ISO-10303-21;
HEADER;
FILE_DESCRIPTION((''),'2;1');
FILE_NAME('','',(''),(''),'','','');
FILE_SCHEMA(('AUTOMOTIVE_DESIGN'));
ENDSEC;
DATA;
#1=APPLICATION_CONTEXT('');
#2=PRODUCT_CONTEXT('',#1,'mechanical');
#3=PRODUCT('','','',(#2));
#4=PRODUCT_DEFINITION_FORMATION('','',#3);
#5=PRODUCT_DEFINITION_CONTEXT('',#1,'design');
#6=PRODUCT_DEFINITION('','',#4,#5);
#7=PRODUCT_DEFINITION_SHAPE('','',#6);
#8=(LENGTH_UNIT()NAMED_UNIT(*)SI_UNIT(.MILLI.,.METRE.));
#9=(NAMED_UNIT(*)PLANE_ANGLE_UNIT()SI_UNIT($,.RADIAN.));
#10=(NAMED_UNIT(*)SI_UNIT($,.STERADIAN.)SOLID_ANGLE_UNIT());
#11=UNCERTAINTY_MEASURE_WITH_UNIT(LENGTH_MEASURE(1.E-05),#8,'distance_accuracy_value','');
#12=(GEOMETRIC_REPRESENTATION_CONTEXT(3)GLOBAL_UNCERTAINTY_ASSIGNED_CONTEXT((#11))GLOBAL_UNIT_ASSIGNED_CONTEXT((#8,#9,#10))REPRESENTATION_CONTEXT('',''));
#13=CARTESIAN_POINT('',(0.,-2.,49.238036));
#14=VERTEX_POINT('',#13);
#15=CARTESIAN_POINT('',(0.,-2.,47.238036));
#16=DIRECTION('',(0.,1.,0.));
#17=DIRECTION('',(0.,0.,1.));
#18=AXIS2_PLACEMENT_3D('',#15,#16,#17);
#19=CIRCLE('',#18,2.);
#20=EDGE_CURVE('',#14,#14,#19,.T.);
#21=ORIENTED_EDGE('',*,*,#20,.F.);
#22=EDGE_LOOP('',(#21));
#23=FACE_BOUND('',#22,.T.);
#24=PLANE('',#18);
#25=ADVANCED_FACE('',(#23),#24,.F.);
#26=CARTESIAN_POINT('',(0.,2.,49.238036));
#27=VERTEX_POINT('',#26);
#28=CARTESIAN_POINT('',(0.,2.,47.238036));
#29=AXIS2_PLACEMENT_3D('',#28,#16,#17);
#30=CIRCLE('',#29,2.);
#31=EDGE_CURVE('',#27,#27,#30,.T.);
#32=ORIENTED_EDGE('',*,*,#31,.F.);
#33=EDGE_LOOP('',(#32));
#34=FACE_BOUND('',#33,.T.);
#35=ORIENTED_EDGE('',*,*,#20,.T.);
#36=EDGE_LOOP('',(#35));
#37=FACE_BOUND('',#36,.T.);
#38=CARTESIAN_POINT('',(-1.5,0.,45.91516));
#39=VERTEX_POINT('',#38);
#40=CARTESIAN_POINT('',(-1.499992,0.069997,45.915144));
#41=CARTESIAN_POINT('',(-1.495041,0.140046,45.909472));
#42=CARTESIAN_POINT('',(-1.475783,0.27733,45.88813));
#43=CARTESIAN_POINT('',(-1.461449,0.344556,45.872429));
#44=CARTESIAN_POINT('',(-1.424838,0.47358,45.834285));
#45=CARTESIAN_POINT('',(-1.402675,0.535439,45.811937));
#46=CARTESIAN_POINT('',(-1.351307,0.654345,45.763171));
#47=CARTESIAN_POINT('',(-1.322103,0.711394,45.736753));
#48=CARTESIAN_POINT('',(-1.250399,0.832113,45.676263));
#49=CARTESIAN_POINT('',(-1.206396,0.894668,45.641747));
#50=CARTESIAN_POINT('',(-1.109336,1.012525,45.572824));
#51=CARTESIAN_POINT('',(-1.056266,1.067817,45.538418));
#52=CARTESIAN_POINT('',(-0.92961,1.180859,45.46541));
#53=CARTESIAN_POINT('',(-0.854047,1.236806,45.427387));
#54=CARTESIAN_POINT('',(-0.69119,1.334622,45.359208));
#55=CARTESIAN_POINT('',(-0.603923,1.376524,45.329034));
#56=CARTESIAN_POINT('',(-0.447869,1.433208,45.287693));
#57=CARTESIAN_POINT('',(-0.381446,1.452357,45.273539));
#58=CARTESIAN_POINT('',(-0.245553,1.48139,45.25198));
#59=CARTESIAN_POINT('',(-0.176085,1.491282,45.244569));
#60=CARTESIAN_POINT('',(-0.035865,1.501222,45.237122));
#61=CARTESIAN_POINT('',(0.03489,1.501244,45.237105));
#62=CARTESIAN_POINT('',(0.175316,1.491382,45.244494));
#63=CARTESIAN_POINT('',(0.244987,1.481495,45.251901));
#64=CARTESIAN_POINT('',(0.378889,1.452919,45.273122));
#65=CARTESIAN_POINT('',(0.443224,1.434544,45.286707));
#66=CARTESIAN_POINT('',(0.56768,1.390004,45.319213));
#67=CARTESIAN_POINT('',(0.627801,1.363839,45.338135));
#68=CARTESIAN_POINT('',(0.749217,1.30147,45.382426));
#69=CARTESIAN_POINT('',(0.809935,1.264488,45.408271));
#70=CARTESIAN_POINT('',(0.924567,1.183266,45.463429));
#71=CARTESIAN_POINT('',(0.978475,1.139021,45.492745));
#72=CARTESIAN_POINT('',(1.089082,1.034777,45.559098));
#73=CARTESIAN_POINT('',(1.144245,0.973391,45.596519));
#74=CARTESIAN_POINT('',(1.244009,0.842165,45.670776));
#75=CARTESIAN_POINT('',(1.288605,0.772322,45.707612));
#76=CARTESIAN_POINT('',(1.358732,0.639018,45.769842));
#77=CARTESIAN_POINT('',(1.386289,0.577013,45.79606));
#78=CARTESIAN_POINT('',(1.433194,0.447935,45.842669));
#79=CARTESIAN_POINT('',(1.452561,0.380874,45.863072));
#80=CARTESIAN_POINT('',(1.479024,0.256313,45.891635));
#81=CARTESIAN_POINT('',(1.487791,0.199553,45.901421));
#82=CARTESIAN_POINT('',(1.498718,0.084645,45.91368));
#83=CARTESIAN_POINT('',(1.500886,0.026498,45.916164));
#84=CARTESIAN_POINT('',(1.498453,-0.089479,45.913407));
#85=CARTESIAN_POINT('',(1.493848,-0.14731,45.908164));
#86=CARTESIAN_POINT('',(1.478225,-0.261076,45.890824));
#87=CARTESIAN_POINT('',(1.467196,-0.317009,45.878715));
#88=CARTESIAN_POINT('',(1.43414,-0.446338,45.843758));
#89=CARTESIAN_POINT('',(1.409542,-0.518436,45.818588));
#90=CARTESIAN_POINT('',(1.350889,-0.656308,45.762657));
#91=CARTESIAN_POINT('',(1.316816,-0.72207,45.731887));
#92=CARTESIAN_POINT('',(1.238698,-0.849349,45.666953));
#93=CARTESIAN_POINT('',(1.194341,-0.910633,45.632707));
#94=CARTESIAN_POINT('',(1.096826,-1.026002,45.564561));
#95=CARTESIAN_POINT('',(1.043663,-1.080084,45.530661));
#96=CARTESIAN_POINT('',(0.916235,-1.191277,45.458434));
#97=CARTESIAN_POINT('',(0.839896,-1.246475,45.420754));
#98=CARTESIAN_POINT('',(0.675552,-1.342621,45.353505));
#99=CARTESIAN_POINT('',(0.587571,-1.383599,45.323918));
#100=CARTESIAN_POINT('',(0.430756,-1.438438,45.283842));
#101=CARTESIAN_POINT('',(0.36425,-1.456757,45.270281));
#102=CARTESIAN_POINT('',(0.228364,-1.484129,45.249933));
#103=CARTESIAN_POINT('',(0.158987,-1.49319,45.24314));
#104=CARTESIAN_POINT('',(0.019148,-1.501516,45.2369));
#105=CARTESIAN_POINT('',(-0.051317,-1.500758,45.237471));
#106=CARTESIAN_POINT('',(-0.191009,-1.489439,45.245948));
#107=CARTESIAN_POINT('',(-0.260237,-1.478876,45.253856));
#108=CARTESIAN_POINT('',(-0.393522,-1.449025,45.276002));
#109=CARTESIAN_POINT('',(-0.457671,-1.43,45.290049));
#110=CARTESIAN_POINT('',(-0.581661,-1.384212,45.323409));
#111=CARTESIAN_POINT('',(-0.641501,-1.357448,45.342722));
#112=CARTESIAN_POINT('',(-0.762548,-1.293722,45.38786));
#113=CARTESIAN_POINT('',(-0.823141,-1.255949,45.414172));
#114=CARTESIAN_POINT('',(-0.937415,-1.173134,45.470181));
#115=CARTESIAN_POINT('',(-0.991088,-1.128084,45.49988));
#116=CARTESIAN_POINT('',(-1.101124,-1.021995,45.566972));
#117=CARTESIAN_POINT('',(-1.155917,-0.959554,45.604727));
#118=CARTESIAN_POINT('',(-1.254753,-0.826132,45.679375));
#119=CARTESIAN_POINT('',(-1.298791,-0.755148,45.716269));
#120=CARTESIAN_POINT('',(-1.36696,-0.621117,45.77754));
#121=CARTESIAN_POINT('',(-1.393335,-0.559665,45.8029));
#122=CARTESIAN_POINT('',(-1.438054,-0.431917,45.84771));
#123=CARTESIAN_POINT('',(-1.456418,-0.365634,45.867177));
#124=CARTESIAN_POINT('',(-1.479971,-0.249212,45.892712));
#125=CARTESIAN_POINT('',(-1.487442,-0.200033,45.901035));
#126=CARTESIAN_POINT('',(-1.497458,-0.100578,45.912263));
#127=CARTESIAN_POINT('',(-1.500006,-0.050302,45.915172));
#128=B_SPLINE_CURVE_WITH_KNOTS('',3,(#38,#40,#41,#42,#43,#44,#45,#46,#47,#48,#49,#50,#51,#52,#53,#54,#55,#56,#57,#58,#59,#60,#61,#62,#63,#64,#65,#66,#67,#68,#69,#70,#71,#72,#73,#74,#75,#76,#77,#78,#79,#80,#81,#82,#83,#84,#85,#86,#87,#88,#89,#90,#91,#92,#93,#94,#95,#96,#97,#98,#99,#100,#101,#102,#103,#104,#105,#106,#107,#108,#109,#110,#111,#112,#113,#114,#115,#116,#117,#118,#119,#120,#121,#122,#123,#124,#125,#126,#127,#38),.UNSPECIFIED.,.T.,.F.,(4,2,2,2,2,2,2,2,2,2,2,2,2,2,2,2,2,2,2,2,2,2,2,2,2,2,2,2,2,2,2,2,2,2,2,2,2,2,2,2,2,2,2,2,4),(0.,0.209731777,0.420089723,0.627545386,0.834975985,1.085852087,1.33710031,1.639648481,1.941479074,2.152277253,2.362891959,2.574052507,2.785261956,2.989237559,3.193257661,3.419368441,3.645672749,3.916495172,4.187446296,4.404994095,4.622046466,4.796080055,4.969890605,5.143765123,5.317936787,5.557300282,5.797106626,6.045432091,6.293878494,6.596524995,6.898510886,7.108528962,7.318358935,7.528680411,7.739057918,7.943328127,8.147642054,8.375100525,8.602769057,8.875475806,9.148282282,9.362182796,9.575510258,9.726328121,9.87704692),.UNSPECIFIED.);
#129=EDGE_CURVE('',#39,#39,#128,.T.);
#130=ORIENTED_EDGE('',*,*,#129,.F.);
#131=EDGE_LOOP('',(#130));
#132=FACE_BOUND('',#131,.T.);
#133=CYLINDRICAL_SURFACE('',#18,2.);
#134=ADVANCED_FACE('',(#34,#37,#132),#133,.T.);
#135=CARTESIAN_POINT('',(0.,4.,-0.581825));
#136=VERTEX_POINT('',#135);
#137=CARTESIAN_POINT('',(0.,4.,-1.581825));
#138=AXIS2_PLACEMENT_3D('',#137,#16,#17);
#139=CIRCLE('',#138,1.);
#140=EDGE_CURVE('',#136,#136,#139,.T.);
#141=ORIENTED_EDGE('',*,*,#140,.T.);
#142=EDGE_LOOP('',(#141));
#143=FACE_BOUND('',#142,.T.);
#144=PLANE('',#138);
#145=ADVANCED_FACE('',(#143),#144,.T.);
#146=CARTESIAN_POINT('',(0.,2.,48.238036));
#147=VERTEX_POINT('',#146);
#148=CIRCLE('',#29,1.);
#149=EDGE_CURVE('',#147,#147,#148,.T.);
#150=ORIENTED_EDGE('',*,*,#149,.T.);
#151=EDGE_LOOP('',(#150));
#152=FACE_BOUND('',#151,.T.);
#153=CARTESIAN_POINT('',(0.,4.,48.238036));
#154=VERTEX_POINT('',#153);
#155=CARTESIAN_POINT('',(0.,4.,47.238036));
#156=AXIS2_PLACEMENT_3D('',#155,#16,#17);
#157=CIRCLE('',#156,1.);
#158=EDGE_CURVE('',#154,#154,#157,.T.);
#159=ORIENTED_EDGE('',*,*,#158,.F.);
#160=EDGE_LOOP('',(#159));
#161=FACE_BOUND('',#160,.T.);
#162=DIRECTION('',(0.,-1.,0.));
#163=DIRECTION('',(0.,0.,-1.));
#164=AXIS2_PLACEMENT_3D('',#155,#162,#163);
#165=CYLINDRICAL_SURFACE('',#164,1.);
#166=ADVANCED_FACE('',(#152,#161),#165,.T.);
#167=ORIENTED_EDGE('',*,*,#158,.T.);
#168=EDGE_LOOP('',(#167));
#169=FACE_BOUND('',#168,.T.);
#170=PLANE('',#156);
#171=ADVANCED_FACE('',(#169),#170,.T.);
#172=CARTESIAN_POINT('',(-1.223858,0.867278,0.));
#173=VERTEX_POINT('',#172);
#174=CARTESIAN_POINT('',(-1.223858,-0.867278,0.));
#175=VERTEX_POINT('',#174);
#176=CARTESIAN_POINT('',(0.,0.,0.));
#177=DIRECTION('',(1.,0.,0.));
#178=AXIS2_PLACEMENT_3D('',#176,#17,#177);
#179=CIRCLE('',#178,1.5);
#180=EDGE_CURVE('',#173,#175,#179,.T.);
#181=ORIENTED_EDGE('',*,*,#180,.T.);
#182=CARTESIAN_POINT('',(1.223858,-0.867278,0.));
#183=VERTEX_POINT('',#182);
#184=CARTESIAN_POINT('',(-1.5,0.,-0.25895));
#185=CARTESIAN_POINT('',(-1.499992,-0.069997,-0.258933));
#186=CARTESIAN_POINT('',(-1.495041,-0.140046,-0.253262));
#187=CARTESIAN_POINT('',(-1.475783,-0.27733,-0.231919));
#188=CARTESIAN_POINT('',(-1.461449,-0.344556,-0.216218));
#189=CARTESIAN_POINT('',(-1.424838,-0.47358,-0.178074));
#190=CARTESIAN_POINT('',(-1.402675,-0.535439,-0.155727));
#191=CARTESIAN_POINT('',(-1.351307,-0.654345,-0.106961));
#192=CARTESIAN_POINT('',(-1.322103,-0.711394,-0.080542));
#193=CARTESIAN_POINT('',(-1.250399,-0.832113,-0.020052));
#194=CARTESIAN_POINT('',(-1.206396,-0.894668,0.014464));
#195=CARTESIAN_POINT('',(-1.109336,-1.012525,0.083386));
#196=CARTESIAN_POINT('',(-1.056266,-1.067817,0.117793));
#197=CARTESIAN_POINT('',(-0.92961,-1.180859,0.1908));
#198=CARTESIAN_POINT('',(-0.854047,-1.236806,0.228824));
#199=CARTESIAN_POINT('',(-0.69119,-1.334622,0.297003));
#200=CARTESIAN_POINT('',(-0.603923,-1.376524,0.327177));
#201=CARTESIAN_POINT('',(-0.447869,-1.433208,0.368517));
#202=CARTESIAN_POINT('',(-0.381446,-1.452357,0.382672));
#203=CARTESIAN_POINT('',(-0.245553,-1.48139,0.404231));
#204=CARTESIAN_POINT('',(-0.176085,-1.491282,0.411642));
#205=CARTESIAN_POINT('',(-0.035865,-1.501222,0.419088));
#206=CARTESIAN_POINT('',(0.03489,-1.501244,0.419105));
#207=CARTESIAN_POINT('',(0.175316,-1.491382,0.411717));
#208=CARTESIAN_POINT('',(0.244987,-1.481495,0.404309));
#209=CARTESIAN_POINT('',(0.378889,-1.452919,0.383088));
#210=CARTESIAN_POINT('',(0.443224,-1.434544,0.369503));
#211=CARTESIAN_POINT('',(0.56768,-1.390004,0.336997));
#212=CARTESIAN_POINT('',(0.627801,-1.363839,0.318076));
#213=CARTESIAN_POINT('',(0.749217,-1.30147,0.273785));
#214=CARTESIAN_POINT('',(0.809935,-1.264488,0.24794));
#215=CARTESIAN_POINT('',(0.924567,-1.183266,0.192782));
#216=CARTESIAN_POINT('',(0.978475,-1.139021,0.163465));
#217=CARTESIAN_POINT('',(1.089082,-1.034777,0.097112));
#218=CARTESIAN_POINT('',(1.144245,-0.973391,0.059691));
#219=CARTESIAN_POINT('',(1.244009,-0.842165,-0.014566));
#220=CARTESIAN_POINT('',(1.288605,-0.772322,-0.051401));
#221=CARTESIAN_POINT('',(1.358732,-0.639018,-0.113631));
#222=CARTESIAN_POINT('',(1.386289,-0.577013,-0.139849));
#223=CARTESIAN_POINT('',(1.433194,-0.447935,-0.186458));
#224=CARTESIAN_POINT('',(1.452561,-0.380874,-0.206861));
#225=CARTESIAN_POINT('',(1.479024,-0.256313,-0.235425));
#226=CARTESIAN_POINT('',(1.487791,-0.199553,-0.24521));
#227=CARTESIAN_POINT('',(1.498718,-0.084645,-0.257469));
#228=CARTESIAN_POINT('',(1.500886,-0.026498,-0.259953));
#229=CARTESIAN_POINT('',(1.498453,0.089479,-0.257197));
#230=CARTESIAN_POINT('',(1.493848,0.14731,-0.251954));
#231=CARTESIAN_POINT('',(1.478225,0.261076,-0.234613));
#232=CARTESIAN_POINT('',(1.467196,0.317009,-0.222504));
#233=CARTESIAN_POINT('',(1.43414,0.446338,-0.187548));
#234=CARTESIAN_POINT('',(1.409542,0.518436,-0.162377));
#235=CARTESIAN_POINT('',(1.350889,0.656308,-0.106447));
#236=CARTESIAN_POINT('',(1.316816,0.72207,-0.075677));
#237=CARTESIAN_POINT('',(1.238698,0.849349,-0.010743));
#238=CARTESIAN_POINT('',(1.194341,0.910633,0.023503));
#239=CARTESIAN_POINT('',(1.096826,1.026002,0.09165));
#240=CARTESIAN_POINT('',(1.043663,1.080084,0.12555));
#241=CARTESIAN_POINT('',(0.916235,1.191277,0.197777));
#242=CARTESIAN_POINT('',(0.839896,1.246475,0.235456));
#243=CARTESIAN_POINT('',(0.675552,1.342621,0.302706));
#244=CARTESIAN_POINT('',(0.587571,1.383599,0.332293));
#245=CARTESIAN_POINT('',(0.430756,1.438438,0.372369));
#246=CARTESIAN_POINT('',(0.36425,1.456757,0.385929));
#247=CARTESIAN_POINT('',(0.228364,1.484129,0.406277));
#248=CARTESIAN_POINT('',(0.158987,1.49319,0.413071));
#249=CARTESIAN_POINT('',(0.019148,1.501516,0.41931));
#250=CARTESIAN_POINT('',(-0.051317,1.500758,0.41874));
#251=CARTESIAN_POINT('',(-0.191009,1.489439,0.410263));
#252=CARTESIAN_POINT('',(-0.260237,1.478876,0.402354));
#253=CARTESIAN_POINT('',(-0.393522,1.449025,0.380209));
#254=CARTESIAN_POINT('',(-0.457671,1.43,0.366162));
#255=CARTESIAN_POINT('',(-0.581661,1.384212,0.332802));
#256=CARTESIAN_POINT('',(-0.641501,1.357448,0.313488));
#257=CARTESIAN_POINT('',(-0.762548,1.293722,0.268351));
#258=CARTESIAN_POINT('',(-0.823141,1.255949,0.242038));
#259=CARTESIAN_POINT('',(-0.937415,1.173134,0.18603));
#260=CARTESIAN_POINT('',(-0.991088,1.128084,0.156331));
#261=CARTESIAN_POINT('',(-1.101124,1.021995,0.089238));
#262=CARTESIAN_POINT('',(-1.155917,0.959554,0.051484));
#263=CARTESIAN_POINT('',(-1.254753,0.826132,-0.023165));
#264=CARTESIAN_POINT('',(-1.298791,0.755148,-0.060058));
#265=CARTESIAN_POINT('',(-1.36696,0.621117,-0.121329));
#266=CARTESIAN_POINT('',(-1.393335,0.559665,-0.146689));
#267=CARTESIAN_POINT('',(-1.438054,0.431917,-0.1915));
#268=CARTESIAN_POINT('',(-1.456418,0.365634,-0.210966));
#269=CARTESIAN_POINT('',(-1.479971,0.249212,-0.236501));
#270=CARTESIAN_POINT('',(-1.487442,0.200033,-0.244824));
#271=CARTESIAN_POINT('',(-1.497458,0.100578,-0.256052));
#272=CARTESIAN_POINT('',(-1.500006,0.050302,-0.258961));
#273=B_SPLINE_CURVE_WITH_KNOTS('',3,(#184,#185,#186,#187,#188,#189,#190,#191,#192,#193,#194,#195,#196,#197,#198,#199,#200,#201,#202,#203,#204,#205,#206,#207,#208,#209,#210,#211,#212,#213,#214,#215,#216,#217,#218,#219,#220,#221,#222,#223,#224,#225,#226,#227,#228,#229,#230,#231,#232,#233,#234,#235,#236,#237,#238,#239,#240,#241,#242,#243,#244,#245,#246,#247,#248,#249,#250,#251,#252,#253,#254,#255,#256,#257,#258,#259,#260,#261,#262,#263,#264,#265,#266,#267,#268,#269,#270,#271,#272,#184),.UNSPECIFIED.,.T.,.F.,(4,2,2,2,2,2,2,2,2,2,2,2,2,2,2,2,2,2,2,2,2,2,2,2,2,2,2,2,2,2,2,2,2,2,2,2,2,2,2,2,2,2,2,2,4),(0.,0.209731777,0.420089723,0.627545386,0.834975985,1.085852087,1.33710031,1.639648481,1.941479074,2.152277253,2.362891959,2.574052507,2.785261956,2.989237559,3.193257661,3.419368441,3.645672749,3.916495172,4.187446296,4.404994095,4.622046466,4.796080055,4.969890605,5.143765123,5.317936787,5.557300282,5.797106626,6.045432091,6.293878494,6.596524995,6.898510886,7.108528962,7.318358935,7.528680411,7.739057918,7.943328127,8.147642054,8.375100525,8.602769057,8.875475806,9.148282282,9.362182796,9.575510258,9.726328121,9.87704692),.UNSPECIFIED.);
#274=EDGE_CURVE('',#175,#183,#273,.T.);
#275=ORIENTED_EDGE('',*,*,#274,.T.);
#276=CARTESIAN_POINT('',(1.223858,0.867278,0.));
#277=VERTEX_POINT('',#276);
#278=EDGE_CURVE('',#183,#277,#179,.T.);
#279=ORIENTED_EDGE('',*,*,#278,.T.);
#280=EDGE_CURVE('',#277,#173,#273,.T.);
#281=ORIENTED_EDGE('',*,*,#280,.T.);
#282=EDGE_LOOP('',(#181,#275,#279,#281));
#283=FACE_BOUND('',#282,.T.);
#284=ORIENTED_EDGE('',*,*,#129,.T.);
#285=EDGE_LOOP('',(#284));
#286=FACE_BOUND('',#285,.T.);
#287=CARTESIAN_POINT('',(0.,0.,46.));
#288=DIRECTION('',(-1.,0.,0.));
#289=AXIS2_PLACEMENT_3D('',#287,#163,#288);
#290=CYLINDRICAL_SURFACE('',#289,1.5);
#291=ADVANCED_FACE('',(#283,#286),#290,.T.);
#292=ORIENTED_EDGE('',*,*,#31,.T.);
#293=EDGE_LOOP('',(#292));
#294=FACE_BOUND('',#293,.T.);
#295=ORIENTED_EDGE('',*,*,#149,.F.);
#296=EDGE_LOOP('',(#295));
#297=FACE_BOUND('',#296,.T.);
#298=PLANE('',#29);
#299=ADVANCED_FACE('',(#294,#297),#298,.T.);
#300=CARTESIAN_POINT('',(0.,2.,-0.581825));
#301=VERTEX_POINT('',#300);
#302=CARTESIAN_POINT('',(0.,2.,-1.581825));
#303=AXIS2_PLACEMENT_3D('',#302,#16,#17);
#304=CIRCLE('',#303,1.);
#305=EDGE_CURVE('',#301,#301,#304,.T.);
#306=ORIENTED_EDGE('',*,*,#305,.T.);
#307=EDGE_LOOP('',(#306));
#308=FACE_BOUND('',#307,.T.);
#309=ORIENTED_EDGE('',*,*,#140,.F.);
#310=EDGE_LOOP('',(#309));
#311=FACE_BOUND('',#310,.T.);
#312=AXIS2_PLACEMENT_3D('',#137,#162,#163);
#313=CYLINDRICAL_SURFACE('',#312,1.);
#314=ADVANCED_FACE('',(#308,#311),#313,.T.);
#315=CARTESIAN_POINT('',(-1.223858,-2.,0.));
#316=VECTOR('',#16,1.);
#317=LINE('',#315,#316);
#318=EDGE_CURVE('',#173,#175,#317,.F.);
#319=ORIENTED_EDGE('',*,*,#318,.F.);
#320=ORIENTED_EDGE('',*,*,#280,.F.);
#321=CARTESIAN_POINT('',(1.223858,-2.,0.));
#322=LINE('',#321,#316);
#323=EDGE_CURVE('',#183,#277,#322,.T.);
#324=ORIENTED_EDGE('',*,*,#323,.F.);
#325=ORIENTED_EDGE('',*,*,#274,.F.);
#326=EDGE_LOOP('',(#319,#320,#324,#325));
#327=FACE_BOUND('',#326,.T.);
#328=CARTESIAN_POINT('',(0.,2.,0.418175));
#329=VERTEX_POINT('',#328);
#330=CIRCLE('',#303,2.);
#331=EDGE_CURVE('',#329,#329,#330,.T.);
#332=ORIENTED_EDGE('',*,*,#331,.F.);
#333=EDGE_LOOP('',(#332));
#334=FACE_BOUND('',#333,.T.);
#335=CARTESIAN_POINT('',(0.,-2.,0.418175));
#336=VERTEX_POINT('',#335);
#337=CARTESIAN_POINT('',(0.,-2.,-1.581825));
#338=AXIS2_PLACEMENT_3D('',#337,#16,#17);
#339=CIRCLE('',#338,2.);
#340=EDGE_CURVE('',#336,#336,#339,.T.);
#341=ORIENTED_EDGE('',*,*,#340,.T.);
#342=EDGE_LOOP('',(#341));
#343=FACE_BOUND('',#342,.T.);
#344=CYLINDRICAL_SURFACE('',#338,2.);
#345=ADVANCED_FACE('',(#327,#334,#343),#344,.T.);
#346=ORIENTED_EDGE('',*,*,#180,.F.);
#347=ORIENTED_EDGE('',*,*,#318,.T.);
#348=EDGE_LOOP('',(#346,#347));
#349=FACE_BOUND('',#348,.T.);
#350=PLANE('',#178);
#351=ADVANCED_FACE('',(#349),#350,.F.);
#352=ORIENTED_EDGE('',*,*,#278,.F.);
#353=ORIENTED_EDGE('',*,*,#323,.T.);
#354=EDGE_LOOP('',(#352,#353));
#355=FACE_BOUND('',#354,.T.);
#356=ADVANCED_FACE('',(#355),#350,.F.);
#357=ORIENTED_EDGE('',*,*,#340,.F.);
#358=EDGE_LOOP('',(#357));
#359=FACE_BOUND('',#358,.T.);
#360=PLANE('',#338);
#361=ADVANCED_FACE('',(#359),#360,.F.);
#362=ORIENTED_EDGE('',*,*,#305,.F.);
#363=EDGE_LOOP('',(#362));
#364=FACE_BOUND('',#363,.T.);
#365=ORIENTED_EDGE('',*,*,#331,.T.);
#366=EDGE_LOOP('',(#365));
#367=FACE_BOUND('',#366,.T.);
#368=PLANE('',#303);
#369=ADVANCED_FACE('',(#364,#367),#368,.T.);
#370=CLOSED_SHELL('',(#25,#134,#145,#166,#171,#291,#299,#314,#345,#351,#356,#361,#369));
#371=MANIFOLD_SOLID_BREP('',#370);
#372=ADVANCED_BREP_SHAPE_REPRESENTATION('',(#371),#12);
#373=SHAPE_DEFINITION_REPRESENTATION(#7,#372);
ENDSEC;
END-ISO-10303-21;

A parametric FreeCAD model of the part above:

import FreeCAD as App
import Part
import Sketcher

V = App.Vector
Q = App.Units.Quantity

doc = App.newDocument("Part")
params = doc.addObject("Spreadsheet::Sheet", "Params")
for row, (alias, value) in enumerate([
    ("sketch1_diameter", "3 mm"),
    ("pad1_length", "46 mm"),
    ("sketch2_diameter", "4 mm"),
    ("pad2_length", "4 mm"),
    ("sketch3_diameter", "2 mm"),
    ("pad3_length", "2 mm"),
], start=1):
    params.set(f"A{row}", alias)
    params.set(f"B{row}", "=" + value)
    params.setAlias(f"B{row}", alias)

body = doc.addObject("PartDesign::Body", "Body")

sketch1 = doc.addObject("Sketcher::SketchObject", "Sketch")
body.addObject(sketch1)
sketch1.AttachmentSupport = (doc.XY_Plane, [""])
sketch1.MapMode = "FlatFace"
sketch1.addGeometry(Part.Circle(V(0, 0, 0), V(0, 0, 1), 1.5), False)
sketch1.addConstraint(Sketcher.Constraint("Coincident", 0, 3, -1, 1))
sketch1.addConstraint(Sketcher.Constraint("Diameter", 0, Q("3 mm")))
sketch1.setExpression("Constraints[1]", "Params.sketch1_diameter")
pad1 = doc.addObject("PartDesign::Pad", "Pad")
body.addObject(pad1)
pad1.Profile = sketch1
pad1.setExpression("Length", "Params.pad1_length")

sketch2 = doc.addObject("Sketcher::SketchObject", "Sketch001")
body.addObject(sketch2)
sketch2.AttachmentSupport = (doc.XZ_Plane, [""])
sketch2.MapMode = "FlatFace"
sketch2.AttachmentOffset = App.Placement(V(0, 0, 2), App.Rotation())
sketch2.addGeometry(Part.Circle(V(0, 47.2, 0), V(0, 0, 1), 2), False)
sketch2.addGeometry(Part.Circle(V(0, -1.6, 0), V(0, 0, 1), 2), False)
sketch2.addConstraint(Sketcher.Constraint("Equal", 0, 1))
sketch2.addConstraint(Sketcher.Constraint("PointOnObject", 0, 3, -2))
sketch2.addConstraint(Sketcher.Constraint("PointOnObject", 1, 3, -2))
sketch2.addConstraint(Sketcher.Constraint("Diameter", 0, Q("4 mm")))
sketch2.addConstraint(Sketcher.Constraint("DistanceY", 1, 3, 0, 3, Q("48.819861 mm")))
sketch2.addConstraint(Sketcher.Constraint("DistanceY", -1, 1, 0, 3, Q("47.238036 mm")))
sketch2.setExpression("Constraints[3]", "Params.sketch2_diameter")
pad2 = doc.addObject("PartDesign::Pad", "Pad001")
body.addObject(pad2)
pad2.Profile = sketch2
pad2.setExpression("Length", "Params.pad2_length")
pad2.Reversed = True

sketch3 = doc.addObject("Sketcher::SketchObject", "Sketch002")
body.addObject(sketch3)
sketch3.AttachmentSupport = (doc.XZ_Plane, [""])
sketch3.MapMode = "FlatFace"
sketch3.AttachmentOffset = App.Placement(V(0, 0, -2), App.Rotation())
sketch3.addGeometry(Part.Circle(V(0, 47.2, 0), V(0, 0, 1), 1), False)
sketch3.addGeometry(Part.Circle(V(0, -1.6, 0), V(0, 0, 1), 1), False)
sketch3.addConstraint(Sketcher.Constraint("Equal", 0, 1))
sketch3.addConstraint(Sketcher.Constraint("PointOnObject", 0, 3, -2))
sketch3.addConstraint(Sketcher.Constraint("PointOnObject", 1, 3, -2))
sketch3.addConstraint(Sketcher.Constraint("Diameter", 0, Q("2 mm")))
sketch3.addConstraint(Sketcher.Constraint("DistanceY", 1, 3, 0, 3, Q("48.819861 mm")))
sketch3.addConstraint(Sketcher.Constraint("DistanceY", -1, 1, 0, 3, Q("47.238036 mm")))
sketch3.setExpression("Constraints[3]", "Params.sketch3_diameter")
pad3 = doc.addObject("PartDesign::Pad", "Pad002")
body.addObject(pad3)
pad3.Profile = sketch3
pad3.setExpression("Length", "Params.pad3_length")
pad3.Reversed = True

doc.recompute()
